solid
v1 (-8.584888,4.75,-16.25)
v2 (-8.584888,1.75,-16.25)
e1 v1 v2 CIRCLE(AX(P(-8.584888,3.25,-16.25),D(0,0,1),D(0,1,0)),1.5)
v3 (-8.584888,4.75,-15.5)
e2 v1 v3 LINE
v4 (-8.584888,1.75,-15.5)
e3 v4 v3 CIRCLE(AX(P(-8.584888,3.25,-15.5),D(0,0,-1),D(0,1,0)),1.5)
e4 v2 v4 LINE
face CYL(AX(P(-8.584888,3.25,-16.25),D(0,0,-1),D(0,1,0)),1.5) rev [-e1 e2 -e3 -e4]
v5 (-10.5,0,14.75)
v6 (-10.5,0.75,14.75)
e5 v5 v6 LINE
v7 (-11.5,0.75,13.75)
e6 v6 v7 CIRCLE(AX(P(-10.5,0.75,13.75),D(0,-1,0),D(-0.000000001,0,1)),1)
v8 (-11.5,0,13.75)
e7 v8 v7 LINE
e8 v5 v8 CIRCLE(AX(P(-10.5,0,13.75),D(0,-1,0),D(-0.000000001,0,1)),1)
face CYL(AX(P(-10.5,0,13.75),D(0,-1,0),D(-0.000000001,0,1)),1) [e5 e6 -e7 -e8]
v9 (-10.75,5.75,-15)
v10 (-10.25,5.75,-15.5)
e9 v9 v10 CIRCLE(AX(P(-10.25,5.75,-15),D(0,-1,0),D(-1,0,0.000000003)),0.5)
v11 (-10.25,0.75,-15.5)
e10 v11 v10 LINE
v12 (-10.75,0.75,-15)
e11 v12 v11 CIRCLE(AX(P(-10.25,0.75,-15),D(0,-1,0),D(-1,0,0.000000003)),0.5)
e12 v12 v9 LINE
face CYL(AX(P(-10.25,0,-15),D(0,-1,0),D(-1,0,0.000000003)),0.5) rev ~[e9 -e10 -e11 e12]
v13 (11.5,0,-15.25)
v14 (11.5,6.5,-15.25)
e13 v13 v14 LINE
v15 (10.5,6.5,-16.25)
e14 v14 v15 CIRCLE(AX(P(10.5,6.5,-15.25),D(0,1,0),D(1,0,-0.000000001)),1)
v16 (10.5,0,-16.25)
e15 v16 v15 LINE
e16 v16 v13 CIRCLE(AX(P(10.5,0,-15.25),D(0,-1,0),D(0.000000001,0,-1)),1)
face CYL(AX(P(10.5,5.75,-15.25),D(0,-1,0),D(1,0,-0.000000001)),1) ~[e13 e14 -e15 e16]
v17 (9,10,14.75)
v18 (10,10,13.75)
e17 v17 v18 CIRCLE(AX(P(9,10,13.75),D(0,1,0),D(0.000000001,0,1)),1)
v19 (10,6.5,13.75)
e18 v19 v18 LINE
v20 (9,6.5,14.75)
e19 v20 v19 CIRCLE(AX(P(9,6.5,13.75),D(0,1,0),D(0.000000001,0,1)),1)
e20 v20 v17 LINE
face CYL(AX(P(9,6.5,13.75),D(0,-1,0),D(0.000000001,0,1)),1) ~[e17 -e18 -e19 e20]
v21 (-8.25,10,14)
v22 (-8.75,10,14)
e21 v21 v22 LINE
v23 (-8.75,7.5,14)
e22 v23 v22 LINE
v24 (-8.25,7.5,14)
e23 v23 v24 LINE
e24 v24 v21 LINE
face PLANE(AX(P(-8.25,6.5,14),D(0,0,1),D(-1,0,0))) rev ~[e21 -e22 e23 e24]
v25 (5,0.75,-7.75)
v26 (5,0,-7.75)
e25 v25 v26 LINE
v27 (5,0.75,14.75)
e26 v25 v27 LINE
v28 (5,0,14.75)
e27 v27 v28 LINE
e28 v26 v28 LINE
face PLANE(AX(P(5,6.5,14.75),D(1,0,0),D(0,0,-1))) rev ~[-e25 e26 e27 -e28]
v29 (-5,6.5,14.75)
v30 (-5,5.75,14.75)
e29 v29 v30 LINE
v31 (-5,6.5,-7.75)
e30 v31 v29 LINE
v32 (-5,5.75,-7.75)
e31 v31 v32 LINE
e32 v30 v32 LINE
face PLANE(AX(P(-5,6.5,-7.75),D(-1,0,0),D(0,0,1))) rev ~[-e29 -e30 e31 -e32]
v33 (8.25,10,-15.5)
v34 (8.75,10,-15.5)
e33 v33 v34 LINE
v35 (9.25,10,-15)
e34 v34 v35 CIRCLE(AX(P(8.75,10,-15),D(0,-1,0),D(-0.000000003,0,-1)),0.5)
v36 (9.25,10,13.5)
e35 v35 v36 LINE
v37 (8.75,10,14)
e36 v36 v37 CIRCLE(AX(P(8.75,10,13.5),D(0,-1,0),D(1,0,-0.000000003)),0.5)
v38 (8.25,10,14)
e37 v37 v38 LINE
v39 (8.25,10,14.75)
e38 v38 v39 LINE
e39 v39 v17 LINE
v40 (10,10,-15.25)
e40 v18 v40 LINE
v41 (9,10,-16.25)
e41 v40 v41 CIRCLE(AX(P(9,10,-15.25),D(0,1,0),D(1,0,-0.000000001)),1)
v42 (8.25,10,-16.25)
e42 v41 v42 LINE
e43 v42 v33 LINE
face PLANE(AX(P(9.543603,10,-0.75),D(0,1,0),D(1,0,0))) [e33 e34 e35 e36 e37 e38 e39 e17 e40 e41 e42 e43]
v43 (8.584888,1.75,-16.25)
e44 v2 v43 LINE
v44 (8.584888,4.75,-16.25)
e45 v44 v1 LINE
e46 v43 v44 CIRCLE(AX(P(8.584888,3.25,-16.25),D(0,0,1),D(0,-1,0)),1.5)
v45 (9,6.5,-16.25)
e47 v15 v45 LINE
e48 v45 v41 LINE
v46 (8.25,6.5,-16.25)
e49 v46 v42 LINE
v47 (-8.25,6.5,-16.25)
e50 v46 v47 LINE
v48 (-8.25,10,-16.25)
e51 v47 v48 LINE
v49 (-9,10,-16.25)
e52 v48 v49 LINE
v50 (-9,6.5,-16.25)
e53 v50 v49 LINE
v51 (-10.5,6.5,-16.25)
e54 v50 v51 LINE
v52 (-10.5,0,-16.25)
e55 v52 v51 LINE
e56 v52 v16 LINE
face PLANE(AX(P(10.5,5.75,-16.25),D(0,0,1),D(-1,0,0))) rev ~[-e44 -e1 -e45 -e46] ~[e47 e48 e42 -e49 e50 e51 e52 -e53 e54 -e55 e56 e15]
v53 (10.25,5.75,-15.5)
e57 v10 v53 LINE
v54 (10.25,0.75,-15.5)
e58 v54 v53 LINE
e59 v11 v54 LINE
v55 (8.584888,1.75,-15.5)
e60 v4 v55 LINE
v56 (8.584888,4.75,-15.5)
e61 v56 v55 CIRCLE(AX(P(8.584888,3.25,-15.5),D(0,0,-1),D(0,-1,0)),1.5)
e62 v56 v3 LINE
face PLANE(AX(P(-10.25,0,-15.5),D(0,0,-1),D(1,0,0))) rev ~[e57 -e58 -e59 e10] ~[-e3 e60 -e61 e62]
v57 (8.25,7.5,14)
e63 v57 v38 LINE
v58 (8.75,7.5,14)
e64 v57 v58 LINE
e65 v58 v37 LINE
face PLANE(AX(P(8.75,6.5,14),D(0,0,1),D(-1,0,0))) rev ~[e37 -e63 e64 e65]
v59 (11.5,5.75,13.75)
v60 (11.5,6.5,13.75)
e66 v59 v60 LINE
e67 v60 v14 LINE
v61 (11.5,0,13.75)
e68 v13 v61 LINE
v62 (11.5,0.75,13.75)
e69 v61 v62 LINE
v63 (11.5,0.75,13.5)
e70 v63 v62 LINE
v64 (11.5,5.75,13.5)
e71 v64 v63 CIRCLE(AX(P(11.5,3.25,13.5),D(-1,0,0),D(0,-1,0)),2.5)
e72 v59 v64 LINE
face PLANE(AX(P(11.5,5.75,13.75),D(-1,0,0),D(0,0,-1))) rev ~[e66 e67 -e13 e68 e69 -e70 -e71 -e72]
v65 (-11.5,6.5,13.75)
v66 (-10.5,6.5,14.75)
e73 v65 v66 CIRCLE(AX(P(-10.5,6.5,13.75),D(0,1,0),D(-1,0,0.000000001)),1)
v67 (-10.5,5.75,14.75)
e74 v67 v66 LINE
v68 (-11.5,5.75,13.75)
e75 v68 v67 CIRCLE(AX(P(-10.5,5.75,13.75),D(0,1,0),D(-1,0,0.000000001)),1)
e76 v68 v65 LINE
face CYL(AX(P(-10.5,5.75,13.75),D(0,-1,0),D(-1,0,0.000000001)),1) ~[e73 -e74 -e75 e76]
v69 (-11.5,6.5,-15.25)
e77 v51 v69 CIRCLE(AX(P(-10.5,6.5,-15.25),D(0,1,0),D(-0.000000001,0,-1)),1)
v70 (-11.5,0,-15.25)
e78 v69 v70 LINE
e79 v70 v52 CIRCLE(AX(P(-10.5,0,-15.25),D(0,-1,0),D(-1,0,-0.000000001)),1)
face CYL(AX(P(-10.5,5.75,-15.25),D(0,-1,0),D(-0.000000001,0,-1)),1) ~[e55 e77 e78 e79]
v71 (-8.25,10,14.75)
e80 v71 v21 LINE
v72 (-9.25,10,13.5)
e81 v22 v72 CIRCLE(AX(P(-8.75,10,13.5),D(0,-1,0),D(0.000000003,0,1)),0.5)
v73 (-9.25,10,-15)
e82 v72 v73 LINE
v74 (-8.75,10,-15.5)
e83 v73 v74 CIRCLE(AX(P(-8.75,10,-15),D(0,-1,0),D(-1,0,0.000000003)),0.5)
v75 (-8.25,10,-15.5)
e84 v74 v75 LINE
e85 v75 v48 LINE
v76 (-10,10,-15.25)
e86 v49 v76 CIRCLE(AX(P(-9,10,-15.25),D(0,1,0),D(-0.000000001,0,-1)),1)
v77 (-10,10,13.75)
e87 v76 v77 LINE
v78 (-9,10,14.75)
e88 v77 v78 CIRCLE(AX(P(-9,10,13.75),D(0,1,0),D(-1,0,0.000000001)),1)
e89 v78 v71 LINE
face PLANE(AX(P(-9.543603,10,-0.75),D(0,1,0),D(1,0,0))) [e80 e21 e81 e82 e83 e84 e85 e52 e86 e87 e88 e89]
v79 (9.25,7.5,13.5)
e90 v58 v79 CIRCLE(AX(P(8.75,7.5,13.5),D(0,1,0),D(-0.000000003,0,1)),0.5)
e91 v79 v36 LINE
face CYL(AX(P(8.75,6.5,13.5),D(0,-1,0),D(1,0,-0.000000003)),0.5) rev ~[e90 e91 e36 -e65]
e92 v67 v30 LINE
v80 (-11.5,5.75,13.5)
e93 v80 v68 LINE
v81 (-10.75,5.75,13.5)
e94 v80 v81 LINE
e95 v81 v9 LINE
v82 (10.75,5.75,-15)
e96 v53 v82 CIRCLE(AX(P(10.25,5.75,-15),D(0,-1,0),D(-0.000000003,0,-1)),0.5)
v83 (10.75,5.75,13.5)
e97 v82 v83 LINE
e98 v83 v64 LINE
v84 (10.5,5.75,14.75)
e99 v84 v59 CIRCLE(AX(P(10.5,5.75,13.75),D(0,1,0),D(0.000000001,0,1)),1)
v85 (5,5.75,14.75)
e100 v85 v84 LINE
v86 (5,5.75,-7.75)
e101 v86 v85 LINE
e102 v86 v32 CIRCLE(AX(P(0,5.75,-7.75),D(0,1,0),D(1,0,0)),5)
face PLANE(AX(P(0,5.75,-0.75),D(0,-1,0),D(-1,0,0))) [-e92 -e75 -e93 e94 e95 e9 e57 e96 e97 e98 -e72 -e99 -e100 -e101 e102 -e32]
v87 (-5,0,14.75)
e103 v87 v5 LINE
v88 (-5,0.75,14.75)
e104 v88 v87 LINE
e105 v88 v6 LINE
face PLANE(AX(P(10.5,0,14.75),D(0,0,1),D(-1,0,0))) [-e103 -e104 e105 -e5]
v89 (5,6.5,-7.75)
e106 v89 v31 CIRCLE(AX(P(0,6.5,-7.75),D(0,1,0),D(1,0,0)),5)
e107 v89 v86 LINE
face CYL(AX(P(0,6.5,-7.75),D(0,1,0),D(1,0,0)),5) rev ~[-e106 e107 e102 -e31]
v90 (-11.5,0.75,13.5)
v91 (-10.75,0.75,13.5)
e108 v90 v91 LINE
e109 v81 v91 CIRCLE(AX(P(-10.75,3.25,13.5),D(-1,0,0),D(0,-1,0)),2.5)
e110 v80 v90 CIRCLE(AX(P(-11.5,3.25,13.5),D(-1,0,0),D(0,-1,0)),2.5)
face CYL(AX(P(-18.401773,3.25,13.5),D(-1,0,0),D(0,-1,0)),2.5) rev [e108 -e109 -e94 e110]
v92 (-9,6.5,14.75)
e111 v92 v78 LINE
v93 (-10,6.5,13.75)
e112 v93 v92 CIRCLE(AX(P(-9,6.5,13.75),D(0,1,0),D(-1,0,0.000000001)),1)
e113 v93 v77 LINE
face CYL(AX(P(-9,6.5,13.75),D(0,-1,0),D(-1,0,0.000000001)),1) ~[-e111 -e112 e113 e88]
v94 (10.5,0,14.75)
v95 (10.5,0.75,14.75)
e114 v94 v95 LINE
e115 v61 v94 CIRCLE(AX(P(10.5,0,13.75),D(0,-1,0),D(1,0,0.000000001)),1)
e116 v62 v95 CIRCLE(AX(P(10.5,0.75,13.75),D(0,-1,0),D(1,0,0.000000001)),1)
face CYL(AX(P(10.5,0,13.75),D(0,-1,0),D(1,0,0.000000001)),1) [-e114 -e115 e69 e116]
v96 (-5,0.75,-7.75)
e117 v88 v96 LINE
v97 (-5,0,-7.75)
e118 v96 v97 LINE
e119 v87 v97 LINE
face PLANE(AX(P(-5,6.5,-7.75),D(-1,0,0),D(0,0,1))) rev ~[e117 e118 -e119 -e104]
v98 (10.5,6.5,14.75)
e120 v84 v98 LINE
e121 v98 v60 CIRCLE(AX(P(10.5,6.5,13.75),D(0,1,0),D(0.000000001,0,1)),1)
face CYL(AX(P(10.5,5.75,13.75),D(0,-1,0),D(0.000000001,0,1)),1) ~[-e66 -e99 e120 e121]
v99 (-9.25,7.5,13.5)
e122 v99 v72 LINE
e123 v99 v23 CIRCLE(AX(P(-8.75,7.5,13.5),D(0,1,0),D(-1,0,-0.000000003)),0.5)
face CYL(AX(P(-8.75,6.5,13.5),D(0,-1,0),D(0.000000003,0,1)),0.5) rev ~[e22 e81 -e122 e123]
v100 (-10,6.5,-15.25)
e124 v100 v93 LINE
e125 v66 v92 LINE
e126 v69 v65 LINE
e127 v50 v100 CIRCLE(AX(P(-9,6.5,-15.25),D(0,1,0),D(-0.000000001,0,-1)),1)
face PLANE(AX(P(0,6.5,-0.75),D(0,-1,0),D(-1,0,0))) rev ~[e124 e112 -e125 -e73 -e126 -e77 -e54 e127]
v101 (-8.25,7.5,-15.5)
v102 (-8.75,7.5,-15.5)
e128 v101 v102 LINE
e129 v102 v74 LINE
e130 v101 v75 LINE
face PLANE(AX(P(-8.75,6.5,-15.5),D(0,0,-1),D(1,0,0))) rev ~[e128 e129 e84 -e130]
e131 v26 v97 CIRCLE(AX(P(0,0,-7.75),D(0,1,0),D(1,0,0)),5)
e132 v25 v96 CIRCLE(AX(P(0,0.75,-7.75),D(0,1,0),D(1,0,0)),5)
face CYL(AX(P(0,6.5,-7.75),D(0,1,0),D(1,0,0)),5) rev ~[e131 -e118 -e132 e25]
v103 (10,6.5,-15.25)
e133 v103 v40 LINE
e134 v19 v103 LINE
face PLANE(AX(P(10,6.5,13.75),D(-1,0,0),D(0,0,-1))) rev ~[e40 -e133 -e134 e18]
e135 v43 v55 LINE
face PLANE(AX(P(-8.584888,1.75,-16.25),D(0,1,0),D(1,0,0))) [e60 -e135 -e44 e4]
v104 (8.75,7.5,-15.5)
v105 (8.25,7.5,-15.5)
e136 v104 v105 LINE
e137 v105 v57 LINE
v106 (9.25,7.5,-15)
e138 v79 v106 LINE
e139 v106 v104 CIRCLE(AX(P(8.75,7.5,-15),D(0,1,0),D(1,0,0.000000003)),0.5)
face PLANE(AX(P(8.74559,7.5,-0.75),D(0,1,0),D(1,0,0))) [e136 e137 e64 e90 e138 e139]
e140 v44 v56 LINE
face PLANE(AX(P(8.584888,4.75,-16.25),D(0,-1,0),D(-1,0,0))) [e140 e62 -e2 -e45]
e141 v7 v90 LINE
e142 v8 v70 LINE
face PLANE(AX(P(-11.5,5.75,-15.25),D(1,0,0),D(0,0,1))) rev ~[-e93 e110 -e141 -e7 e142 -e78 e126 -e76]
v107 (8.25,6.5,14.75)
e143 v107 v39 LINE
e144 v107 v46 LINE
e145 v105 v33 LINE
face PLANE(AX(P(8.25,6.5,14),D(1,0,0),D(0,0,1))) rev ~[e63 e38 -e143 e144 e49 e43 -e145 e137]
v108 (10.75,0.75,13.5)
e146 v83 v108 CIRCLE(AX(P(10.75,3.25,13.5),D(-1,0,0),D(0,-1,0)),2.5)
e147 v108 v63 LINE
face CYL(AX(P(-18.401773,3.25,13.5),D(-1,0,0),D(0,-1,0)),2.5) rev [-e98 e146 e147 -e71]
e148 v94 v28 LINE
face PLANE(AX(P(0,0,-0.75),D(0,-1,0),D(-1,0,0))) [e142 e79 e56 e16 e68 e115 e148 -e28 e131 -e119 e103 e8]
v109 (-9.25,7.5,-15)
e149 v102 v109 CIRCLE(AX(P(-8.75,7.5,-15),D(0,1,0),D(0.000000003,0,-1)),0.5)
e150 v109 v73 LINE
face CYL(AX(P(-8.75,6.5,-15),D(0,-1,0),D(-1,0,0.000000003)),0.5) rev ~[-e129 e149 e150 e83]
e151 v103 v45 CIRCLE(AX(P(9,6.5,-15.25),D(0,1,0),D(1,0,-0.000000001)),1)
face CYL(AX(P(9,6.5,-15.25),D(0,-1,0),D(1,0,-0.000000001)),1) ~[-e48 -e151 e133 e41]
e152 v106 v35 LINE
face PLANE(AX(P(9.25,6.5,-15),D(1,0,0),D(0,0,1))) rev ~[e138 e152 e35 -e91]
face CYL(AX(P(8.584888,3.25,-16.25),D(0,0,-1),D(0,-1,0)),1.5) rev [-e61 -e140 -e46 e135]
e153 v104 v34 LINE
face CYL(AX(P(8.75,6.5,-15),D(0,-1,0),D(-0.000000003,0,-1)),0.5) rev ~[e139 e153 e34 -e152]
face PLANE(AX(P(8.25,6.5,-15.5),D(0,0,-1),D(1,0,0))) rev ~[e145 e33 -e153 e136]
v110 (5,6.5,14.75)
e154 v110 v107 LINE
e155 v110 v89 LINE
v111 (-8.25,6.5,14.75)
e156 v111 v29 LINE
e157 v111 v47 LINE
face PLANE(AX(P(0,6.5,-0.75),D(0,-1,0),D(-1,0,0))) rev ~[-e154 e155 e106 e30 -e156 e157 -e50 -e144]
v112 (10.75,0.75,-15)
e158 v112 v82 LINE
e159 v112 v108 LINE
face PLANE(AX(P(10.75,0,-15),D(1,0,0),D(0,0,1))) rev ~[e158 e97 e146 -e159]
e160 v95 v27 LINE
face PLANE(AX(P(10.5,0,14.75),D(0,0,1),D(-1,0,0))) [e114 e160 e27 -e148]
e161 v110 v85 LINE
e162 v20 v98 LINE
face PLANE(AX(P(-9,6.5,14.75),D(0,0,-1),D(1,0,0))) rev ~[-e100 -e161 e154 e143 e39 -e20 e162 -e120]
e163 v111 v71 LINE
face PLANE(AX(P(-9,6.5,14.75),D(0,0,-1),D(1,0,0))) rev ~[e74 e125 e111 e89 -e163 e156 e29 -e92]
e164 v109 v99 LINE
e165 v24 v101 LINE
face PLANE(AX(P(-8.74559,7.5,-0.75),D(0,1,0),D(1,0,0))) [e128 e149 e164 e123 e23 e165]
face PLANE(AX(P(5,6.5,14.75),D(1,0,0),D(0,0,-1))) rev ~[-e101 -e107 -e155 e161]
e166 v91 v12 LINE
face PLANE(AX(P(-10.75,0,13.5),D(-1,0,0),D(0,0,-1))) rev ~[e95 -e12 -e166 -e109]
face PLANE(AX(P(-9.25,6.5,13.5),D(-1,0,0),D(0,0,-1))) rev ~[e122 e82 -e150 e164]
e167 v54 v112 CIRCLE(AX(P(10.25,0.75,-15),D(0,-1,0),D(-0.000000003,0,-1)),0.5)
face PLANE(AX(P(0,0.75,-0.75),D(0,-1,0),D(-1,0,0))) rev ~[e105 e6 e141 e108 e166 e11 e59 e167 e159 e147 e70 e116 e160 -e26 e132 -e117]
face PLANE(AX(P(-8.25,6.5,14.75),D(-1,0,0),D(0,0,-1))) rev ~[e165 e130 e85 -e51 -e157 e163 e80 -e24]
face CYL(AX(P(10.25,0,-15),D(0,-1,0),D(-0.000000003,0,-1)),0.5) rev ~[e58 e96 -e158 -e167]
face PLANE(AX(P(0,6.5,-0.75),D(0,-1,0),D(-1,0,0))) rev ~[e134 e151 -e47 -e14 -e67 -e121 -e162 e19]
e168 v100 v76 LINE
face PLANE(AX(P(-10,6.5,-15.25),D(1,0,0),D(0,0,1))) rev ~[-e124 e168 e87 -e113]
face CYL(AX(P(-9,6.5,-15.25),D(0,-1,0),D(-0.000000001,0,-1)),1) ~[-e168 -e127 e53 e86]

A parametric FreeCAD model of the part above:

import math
import FreeCAD as App
import Part
import Sketcher

V = App.Vector

doc = App.newDocument("Part")
body = doc.addObject("PartDesign::Body", "Body")

# Sketch on XZ plane
sketch1 = body.newObject("Sketcher::SketchObject", "Sketch")
sketch1.AttachmentSupport = (doc.getObject("XZ_Plane"), [""])
sketch1.MapMode = "FlatFace"
sketch1.addGeometry([
    Part.LineSegment(V(10.5, -16.2, 0), V(-10.5, -16.2, 0)),  # 0
    Part.ArcOfCircle(Part.Circle(V(-10.5, -15.2, 0), V(0, 0, 1), 1), math.radians(-180), math.radians(-90)),  # 1
    Part.LineSegment(V(-11.5, -15.2, 0), V(-11.5, 13.8, 0)),  # 2
    Part.ArcOfCircle(Part.Circle(V(-10.5, 13.7, 0), V(0, 0, 1), 1), math.radians(90), math.radians(180)),  # 3
    Part.LineSegment(V(-10.5, 14.8, 0), V(10.5, 14.8, 0)),  # 4
    Part.ArcOfCircle(Part.Circle(V(10.5, 13.7, 0), V(0, 0, 1), 1), math.radians(0), math.radians(90)),  # 5
    Part.LineSegment(V(11.5, 13.8, 0), V(11.5, -15.2, 0)),  # 6
    Part.ArcOfCircle(Part.Circle(V(10.5, -15.2, 0), V(0, 0, 1), 1), math.radians(-90), math.radians(0)),  # 7
], False)
sketch1.addConstraint([
    Sketcher.Constraint("Tangent", 0, 2, 1, 2),
    Sketcher.Constraint("Tangent", 1, 1, 2, 1),
    Sketcher.Constraint("Tangent", 2, 2, 3, 2),
    Sketcher.Constraint("Tangent", 3, 1, 4, 1),
    Sketcher.Constraint("Tangent", 4, 2, 5, 2),
    Sketcher.Constraint("Tangent", 5, 1, 6, 1),
    Sketcher.Constraint("Tangent", 6, 2, 7, 2),
    Sketcher.Constraint("Tangent", 7, 1, 0, 1),
    Sketcher.Constraint("Horizontal", 0),
    Sketcher.Constraint("Vertical", 2),
    Sketcher.Constraint("Horizontal", 4),
    Sketcher.Constraint("Vertical", 6),
    Sketcher.Constraint("Equal", 1, 3),
    Sketcher.Constraint("Equal", 3, 5),
    Sketcher.Constraint("Equal", 5, 7),
    Sketcher.Constraint("Radius", 1, 1.0),
    Sketcher.Constraint("DistanceX", 0, 2, 0, 1, 21.0),
    Sketcher.Constraint("DistanceY", 2, 1, 2, 2, 29.0),
    Sketcher.Constraint("DistanceX", 1, 3, -1, 1, 10.5),
    Sketcher.Constraint("DistanceY", 1, 3, -1, 1, 15.25),
])
pad1 = body.newObject("PartDesign::Pad", "Pad")
pad1.Profile = sketch1
pad1.Length = 0.75
pad1.Reversed = True

# Sketch on XZ plane
sketch2 = body.newObject("Sketcher::SketchObject", "Sketch001")
sketch2.AttachmentSupport = (doc.getObject("XZ_Plane"), [""])
sketch2.MapMode = "FlatFace"
sketch2.addGeometry([
    Part.LineSegment(V(-11.5, 13.5, 0), V(-10.75, 13.5, 0)),  # 0
    Part.LineSegment(V(-10.75, 13.5, 0), V(-10.75, -15, 0)),  # 1
    Part.ArcOfCircle(Part.Circle(V(-10.25, -15, 0), V(0, 0, 1), 0.5), math.radians(180), math.radians(270)),  # 2
    Part.LineSegment(V(-10.25, -15.5, 0), V(10.25, -15.5, 0)),  # 3
    Part.ArcOfCircle(Part.Circle(V(10.25, -15, 0), V(0, 0, 1), 0.5), math.radians(-90), math.radians(0)),  # 4
    Part.LineSegment(V(10.75, -15, 0), V(10.75, 13.5, 0)),  # 5
    Part.LineSegment(V(10.75, 13.5, 0), V(11.5, 13.5, 0)),  # 6
    Part.LineSegment(V(11.5, 13.5, 0), V(11.5, -15.25, 0)),  # 7
    Part.ArcOfCircle(Part.Circle(V(10.5, -15.25, 0), V(0, 0, 1), 1), math.radians(-90), math.radians(0)),  # 8
    Part.LineSegment(V(10.5, -16.25, 0), V(-10.5, -16.25, 0)),  # 9
    Part.ArcOfCircle(Part.Circle(V(-10.5, -15.25, 0), V(0, 0, 1), 1), math.radians(-180), math.radians(-90)),  # 10
    Part.LineSegment(V(-11.5, -15.25, 0), V(-11.5, 13.5, 0)),  # 11
], False)
sketch2.addConstraint([
    Sketcher.Constraint("Coincident", 0, 2, 1, 1),
    Sketcher.Constraint("Tangent", 1, 2, 2, 1),
    Sketcher.Constraint("Tangent", 2, 2, 3, 1),
    Sketcher.Constraint("Tangent", 3, 2, 4, 1),
    Sketcher.Constraint("Tangent", 4, 2, 5, 1),
    Sketcher.Constraint("Coincident", 5, 2, 6, 1),
    Sketcher.Constraint("Coincident", 6, 2, 7, 1),
    Sketcher.Constraint("Tangent", 7, 2, 8, 2),
    Sketcher.Constraint("Tangent", 8, 1, 9, 1),
    Sketcher.Constraint("Tangent", 9, 2, 10, 2),
    Sketcher.Constraint("Tangent", 10, 1, 11, 1),
    Sketcher.Constraint("Coincident", 11, 2, 0, 1),
    Sketcher.Constraint("Horizontal", 0),
    Sketcher.Constraint("Vertical", 1),
    Sketcher.Constraint("Horizontal", 3),
    Sketcher.Constraint("Vertical", 5),
    Sketcher.Constraint("Horizontal", 6),
    Sketcher.Constraint("Vertical", 7),
    Sketcher.Constraint("Horizontal", 9),
    Sketcher.Constraint("Vertical", 11),
    Sketcher.Constraint("Equal", 2, 4),
    Sketcher.Constraint("Equal", 8, 10),
    Sketcher.Constraint("Symmetric", 0, 2, 5, 2, -2),
    Sketcher.Constraint("Equal", 0, 6),
    Sketcher.Constraint("Radius", 8, 1.0),
    Sketcher.Constraint("Radius", 2, 0.5),
    Sketcher.Constraint("DistanceX", 9, 2, 9, 1, 21.0),
    Sketcher.Constraint("DistanceX", 3, 1, 3, 2, 20.5),
    Sketcher.Constraint("DistanceY", 1, 2, 1, 1, 28.5),
    Sketcher.Constraint("DistanceY", 2, 3, -1, 1, 15.0),
    Sketcher.Constraint("DistanceY", 7, 2, 7, 1, 28.75),
])
pad2 = body.newObject("PartDesign::Pad", "Pad001")
pad2.Profile = sketch2
pad2.Length = 5.75
pad2.Reversed = True

# Sketch on XZ plane
sketch3 = body.newObject("Sketcher::SketchObject", "Sketch002")
sketch3.AttachmentSupport = (doc.getObject("XZ_Plane"), [""])
sketch3.MapMode = "FlatFace"
sketch3.AttachmentOffset = App.Placement(V(0, 0, -5.75), App.Rotation())
sketch3.addGeometry([
    Part.LineSegment(V(11.5, 13.8, 0), V(11.5, -15.2, 0)),  # 0
    Part.ArcOfCircle(Part.Circle(V(10.5, -15.2, 0), V(0, 0, 1), 1), math.radians(-90), math.radians(0)),  # 1
    Part.LineSegment(V(10.5, -16.2, 0), V(-10.5, -16.2, 0)),  # 2
    Part.ArcOfCircle(Part.Circle(V(-10.5, -15.2, 0), V(0, 0, 1), 1), math.radians(-180), math.radians(-90)),  # 3
    Part.LineSegment(V(-11.5, -15.2, 0), V(-11.5, 13.8, 0)),  # 4
    Part.ArcOfCircle(Part.Circle(V(-10.5, 13.7, 0), V(0, 0, 1), 1), math.radians(90), math.radians(180)),  # 5
    Part.LineSegment(V(-10.5, 14.8, 0), V(10.5, 14.8, 0)),  # 6
    Part.ArcOfCircle(Part.Circle(V(10.5, 13.7, 0), V(0, 0, 1), 1), math.radians(0), math.radians(90)),  # 7
], False)
sketch3.addConstraint([
    Sketcher.Constraint("Tangent", 0, 2, 1, 2),
    Sketcher.Constraint("Tangent", 1, 1, 2, 1),
    Sketcher.Constraint("Tangent", 2, 2, 3, 2),
    Sketcher.Constraint("Tangent", 3, 1, 4, 1),
    Sketcher.Constraint("Tangent", 4, 2, 5, 2),
    Sketcher.Constraint("Tangent", 5, 1, 6, 1),
    Sketcher.Constraint("Tangent", 6, 2, 7, 2),
    Sketcher.Constraint("Tangent", 7, 1, 0, 1),
    Sketcher.Constraint("Vertical", 0),
    Sketcher.Constraint("Horizontal", 2),
    Sketcher.Constraint("Vertical", 4),
    Sketcher.Constraint("Horizontal", 6),
    Sketcher.Constraint("Equal", 1, 3),
    Sketcher.Constraint("Equal", 3, 5),
    Sketcher.Constraint("Equal", 5, 7),
    Sketcher.Constraint("Radius", 1, 1.0),
    Sketcher.Constraint("DistanceX", 2, 2, 2, 1, 21.0),
    Sketcher.Constraint("DistanceY", 0, 2, 0, 1, 29.0),
    Sketcher.Constraint("DistanceX", -1, 1, 1, 3, 10.5),
    Sketcher.Constraint("DistanceY", 1, 3, -1, 1, 15.25),
])
pad3 = body.newObject("PartDesign::Pad", "Pad002")
pad3.Profile = sketch3
pad3.Length = 0.75
pad3.Reversed = True

# Sketch on YZ plane
sketch4 = body.newObject("Sketcher::SketchObject", "Sketch003")
sketch4.AttachmentSupport = (doc.getObject("YZ_Plane"), [""])
sketch4.MapMode = "FlatFace"
sketch4.AttachmentOffset = App.Placement(V(0, 0, 11.5), App.Rotation())
sketch4.addGeometry([
    Part.ArcOfCircle(Part.Circle(V(3.2, 13.5, 0), V(0, 0, 1), 2.5), math.radians(180), math.radians(360)),
    Part.LineSegment(V(5.8, 13.5, 0), V(5.8, 225.3, 0)),
    Part.LineSegment(V(5.8, 225.3, 0), V(0.8, 225.3, 0)),
    Part.LineSegment(V(0.8, 225.3, 0), V(0.8, 13.5, 0)),
], False)
sketch4.addConstraint([
    Sketcher.Constraint("Tangent", 0, 2, 1, 1),
    Sketcher.Constraint("Coincident", 1, 2, 2, 1),
    Sketcher.Constraint("Coincident", 2, 2, 3, 1),
    Sketcher.Constraint("Tangent", 3, 2, 0, 1),
    Sketcher.Constraint("Vertical", 1),
    Sketcher.Constraint("Horizontal", 2),
    Sketcher.Constraint("Vertical", 3),
    Sketcher.Constraint("Radius", 0, 2.5),
    Sketcher.Constraint("DistanceY", -1, 1, 0, 3, 13.5),
    Sketcher.Constraint("DistanceX", -1, 1, 0, 3, 3.25),
    Sketcher.Constraint("DistanceY", 1, 1, 1, 2, 211.803465),
])
pocket1 = body.newObject("PartDesign::Pocket", "Pocket")
pocket1.Profile = sketch4
pocket1.Type = "ThroughAll"
pocket1.Midplane = True

# Sketch on XZ plane
sketch5 = body.newObject("Sketcher::SketchObject", "Sketch004")
sketch5.AttachmentSupport = (doc.getObject("XZ_Plane"), [""])
sketch5.MapMode = "FlatFace"
sketch5.AttachmentOffset = App.Placement(V(0, 0, -6.5), App.Rotation())
sketch5.addGeometry([
    Part.LineSegment(V(-8.75, 14, 0), V(-8.25, 14, 0)),  # 0
    Part.LineSegment(V(-8.25, 14, 0), V(-8.25, -15.5, 0)),  # 1
    Part.LineSegment(V(-8.25, -15.5, 0), V(-8.75, -15.5, 0)),  # 2
    Part.ArcOfCircle(Part.Circle(V(-8.75, -15, 0), V(0, 0, 1), 0.5), math.radians(180), math.radians(270)),  # 3
    Part.LineSegment(V(-9.25, -15, 0), V(-9.25, 13.5, 0)),  # 4
    Part.ArcOfCircle(Part.Circle(V(-8.75, 13.5, 0), V(0, 0, 1), 0.5), math.radians(90), math.radians(180)),  # 5
    Part.LineSegment(V(8.25, -15.5, 0), V(8.25, 14, 0)),  # 6
    Part.LineSegment(V(8.25, 14, 0), V(8.75, 14, 0)),  # 7
    Part.ArcOfCircle(Part.Circle(V(8.75, 13.5, 0), V(0, 0, 1), 0.5), math.radians(0), math.radians(90)),  # 8
    Part.LineSegment(V(9.25, 13.5, 0), V(9.25, -15, 0)),  # 9
    Part.ArcOfCircle(Part.Circle(V(8.75, -15, 0), V(0, 0, 1), 0.5), math.radians(-90), math.radians(0)),  # 10
    Part.LineSegment(V(8.75, -15.5, 0), V(8.25, -15.5, 0)),  # 11
], False)
sketch5.addConstraint([
    Sketcher.Constraint("Coincident", 0, 2, 1, 1),
    Sketcher.Constraint("Coincident", 1, 2, 2, 1),
    Sketcher.Constraint("Tangent", 2, 2, 3, 2),
    Sketcher.Constraint("Tangent", 3, 1, 4, 1),
    Sketcher.Constraint("Tangent", 4, 2, 5, 2),
    Sketcher.Constraint("Tangent", 5, 1, 0, 1),
    Sketcher.Constraint("Coincident", 6, 2, 7, 1),
    Sketcher.Constraint("Tangent", 7, 2, 8, 2),
    Sketcher.Constraint("Tangent", 8, 1, 9, 1),
    Sketcher.Constraint("Tangent", 9, 2, 10, 2),
    Sketcher.Constraint("Tangent", 10, 1, 11, 1),
    Sketcher.Constraint("Coincident", 11, 2, 6, 1),
    Sketcher.Constraint("Horizontal", 0),
    Sketcher.Constraint("Vertical", 1),
    Sketcher.Constraint("Horizontal", 2),
    Sketcher.Constraint("Vertical", 4),
    Sketcher.Constraint("Vertical", 6),
    Sketcher.Constraint("Horizontal", 7),
    Sketcher.Constraint("Vertical", 9),
    Sketcher.Constraint("Horizontal", 11),
    Sketcher.Constraint("Equal", 3, 5),
    Sketcher.Constraint("Equal", 5, 8),
    Sketcher.Constraint("Equal", 8, 10),
    Sketcher.Constraint("Symmetric", 5, 3, 8, 3, -2),
    Sketcher.Constraint("Symmetric", 1, 2, 11, 2, -2),
    Sketcher.Constraint("Radius", 3, 0.5),
    Sketcher.Constraint("DistanceX", 0, 1, 0, 2, 0.5),
    Sketcher.Constraint("DistanceY", 1, 2, 1, 1, 29.5),
    Sketcher.Constraint("DistanceY", 3, 3, -1, 1, 15.0),
    Sketcher.Constraint("DistanceX", 0, 2, 8, 3, 17.0),
])
pad4 = body.newObject("PartDesign::Pad", "Pad003")
pad4.Profile = sketch5
pad4.Length = 1
pad4.Reversed = True

# Sketch on XZ plane
sketch6 = body.newObject("Sketcher::SketchObject", "Sketch005")
sketch6.AttachmentSupport = (doc.getObject("XZ_Plane"), [""])
sketch6.MapMode = "FlatFace"
sketch6.AttachmentOffset = App.Placement(V(0, 0, -6.5), App.Rotation())
sketch6.addGeometry([
    Part.LineSegment(V(-8.25, 14.75, 0), V(-8.25, 14, 0)),  # 0
    Part.LineSegment(V(-8.25, 14, 0), V(-8.75, 14, 0)),  # 1
    Part.ArcOfCircle(Part.Circle(V(-8.75, 13.5, 0), V(0, 0, 1), 0.5), math.radians(90), math.radians(180)),  # 2
    Part.LineSegment(V(-9.25, 13.5, 0), V(-9.25, -15, 0)),  # 3
    Part.ArcOfCircle(Part.Circle(V(-8.75, -15, 0), V(0, 0, 1), 0.5), math.radians(180), math.radians(270)),  # 4
    Part.LineSegment(V(-8.75, -15.5, 0), V(-8.25, -15.5, 0)),  # 5
    Part.LineSegment(V(-8.25, -15.5, 0), V(-8.25, -16.25, 0)),  # 6
    Part.LineSegment(V(-8.25, -16.25, 0), V(-9, -16.25, 0)),  # 7
    Part.ArcOfCircle(Part.Circle(V(-9, -15.25, 0), V(0, 0, 1), 1), math.radians(-180), math.radians(-90)),  # 8
    Part.LineSegment(V(-10, -15.25, 0), V(-10, 13.75, 0)),  # 9
    Part.ArcOfCircle(Part.Circle(V(-9, 13.75, 0), V(0, 0, 1), 1), math.radians(90), math.radians(180)),  # 10
    Part.LineSegment(V(-9, 14.75, 0), V(-8.25, 14.75, 0)),  # 11
    Part.LineSegment(V(8.75, 14, 0), V(8.25, 14, 0)),  # 12
    Part.LineSegment(V(8.25, 14, 0), V(8.25, 14.75, 0)),  # 13
    Part.LineSegment(V(8.25, 14.75, 0), V(9, 14.75, 0)),  # 14
    Part.ArcOfCircle(Part.Circle(V(9, 13.75, 0), V(0, 0, 1), 1), math.radians(0), math.radians(90)),  # 15
    Part.LineSegment(V(10, 13.75, 0), V(10, -15.25, 0)),  # 16
    Part.ArcOfCircle(Part.Circle(V(9, -15.25, 0), V(0, 0, 1), 1), math.radians(-90), math.radians(0)),  # 17
    Part.LineSegment(V(9, -16.25, 0), V(8.25, -16.25, 0)),  # 18
    Part.LineSegment(V(8.25, -16.25, 0), V(8.25, -15.5, 0)),  # 19
    Part.LineSegment(V(8.25, -15.5, 0), V(8.75, -15.5, 0)),  # 20
    Part.ArcOfCircle(Part.Circle(V(8.75, -15, 0), V(0, 0, 1), 0.5), math.radians(-90), math.radians(0)),  # 21
    Part.LineSegment(V(9.25, -15, 0), V(9.25, 13.5, 0)),  # 22
    Part.ArcOfCircle(Part.Circle(V(8.75, 13.5, 0), V(0, 0, 1), 0.5), math.radians(0), math.radians(90)),  # 23
], False)
sketch6.addConstraint([
    Sketcher.Constraint("Coincident", 0, 2, 1, 1),
    Sketcher.Constraint("Tangent", 1, 2, 2, 1),
    Sketcher.Constraint("Tangent", 2, 2, 3, 1),
    Sketcher.Constraint("Tangent", 3, 2, 4, 1),
    Sketcher.Constraint("Tangent", 4, 2, 5, 1),
    Sketcher.Constraint("Coincident", 5, 2, 6, 1),
    Sketcher.Constraint("Coincident", 6, 2, 7, 1),
    Sketcher.Constraint("Tangent", 7, 2, 8, 2),
    Sketcher.Constraint("Tangent", 8, 1, 9, 1),
    Sketcher.Constraint("Tangent", 9, 2, 10, 2),
    Sketcher.Constraint("Tangent", 10, 1, 11, 1),
    Sketcher.Constraint("Coincident", 11, 2, 0, 1),
    Sketcher.Constraint("Coincident", 12, 2, 13, 1),
    Sketcher.Constraint("Coincident", 13, 2, 14, 1),
    Sketcher.Constraint("Tangent", 14, 2, 15, 2),
    Sketcher.Constraint("Tangent", 15, 1, 16, 1),
    Sketcher.Constraint("Tangent", 16, 2, 17, 2),
    Sketcher.Constraint("Tangent", 17, 1, 18, 1),
    Sketcher.Constraint("Coincident", 18, 2, 19, 1),
    Sketcher.Constraint("Coincident", 19, 2, 20, 1),
    Sketcher.Constraint("Tangent", 20, 2, 21, 1),
    Sketcher.Constraint("Tangent", 21, 2, 22, 1),
    Sketcher.Constraint("Tangent", 22, 2, 23, 1),
    Sketcher.Constraint("Tangent", 23, 2, 12, 1),
    Sketcher.Constraint("Vertical", 0),
    Sketcher.Constraint("Horizontal", 1),
    Sketcher.Constraint("Vertical", 3),
    Sketcher.Constraint("Horizontal", 5),
    Sketcher.Constraint("Vertical", 6),
    Sketcher.Constraint("Horizontal", 7),
    Sketcher.Constraint("Vertical", 9),
    Sketcher.Constraint("Horizontal", 11),
    Sketcher.Constraint("Horizontal", 12),
    Sketcher.Constraint("Vertical", 13),
    Sketcher.Constraint("Horizontal", 14),
    Sketcher.Constraint("Vertical", 16),
    Sketcher.Constraint("Horizontal", 18),
    Sketcher.Constraint("Vertical", 19),
    Sketcher.Constraint("Horizontal", 20),
    Sketcher.Constraint("Vertical", 22),
    Sketcher.Constraint("Equal", 2, 4),
    Sketcher.Constraint("Equal", 8, 10),
    Sketcher.Constraint("Equal", 10, 15),
    Sketcher.Constraint("Equal", 15, 17),
    Sketcher.Constraint("Equal", 4, 21),
    Sketcher.Constraint("Equal", 21, 23),
    Sketcher.Constraint("Symmetric", 10, 3, 15, 3, -2),
    Sketcher.Constraint("Symmetric", 4, 3, 21, 3, -2),
    Sketcher.Constraint("Symmetric", 0, 2, 12, 2, -2),
    Sketcher.Constraint("Symmetric", 6, 2, 18, 2, -2),
    Sketcher.Constraint("Vertical", 0, 2, 5, 2),
    Sketcher.Constraint("Equal", 18, 0),
    Sketcher.Constraint("Equal", 0, 6),
    Sketcher.Constraint("Radius", 8, 1.0),
    Sketcher.Constraint("Radius", 2, 0.5),
    Sketcher.Constraint("DistanceY", 9, 1, 9, 2, 29.0),
    Sketcher.Constraint("DistanceX", 1, 2, 1, 1, 0.5),
    Sketcher.Constraint("DistanceY", 3, 2, 3, 1, 28.5),
    Sketcher.Constraint("DistanceY", 4, 3, -1, 1, 15.0),
    Sketcher.Constraint("DistanceX", 8, 3, -1, 1, 9.0),
])
pad5 = body.newObject("PartDesign::Pad", "Pad004")
pad5.Profile = sketch6
pad5.Length = 3.5
pad5.Reversed = True

# Sketch on XZ plane
sketch7 = body.newObject("Sketcher::SketchObject", "Sketch006")
sketch7.AttachmentSupport = (doc.getObject("XZ_Plane"), [""])
sketch7.MapMode = "FlatFace"
sketch7.AttachmentOffset = App.Placement(V(0, 0, -6.5), App.Rotation())
sketch7.addGeometry([
    Part.LineSegment(V(-5, -8, 0), V(-5, 15, 0)),
    Part.LineSegment(V(-5, 15, 0), V(5, 15, 0)),
    Part.LineSegment(V(5, 15, 0), V(5, -8, 0)),
    Part.ArcOfCircle(Part.Circle(V(0, -8, 0), V(0, 0, 1), 5), math.radians(180), math.radians(360)),
], False)
sketch7.addConstraint([
    Sketcher.Constraint("Coincident", 0, 2, 1, 1),
    Sketcher.Constraint("Coincident", 1, 2, 2, 1),
    Sketcher.Constraint("Tangent", 2, 2, 3, 2),
    Sketcher.Constraint("Tangent", 3, 1, 0, 1),
    Sketcher.Constraint("Vertical", 0),
    Sketcher.Constraint("Horizontal", 1),
    Sketcher.Constraint("Vertical", 2),
    Sketcher.Constraint("PointOnObject", 3, 3, -2),
    Sketcher.Constraint("Radius", 3, 5.0),
    Sketcher.Constraint("DistanceY", 0, 1, 0, 2, 22.5),
    Sketcher.Constraint("DistanceY", 3, 3, -1, 1, 7.75),
])
pocket2 = body.newObject("PartDesign::Pocket", "Pocket001")
pocket2.Profile = sketch7
pocket2.Type = "ThroughAll"
pocket2.Reversed = True

# Sketch on XY plane
sketch8 = body.newObject("Sketcher::SketchObject", "Sketch007")
sketch8.AttachmentSupport = (doc.getObject("XY_Plane"), [""])
sketch8.MapMode = "FlatFace"
sketch8.AttachmentOffset = App.Placement(V(0, 0, -16.25), App.Rotation())
sketch8.addGeometry([
    Part.LineSegment(V(8.6, 1.8, 0), V(-8.6, 1.8, 0)),
    Part.ArcOfCircle(Part.Circle(V(-8.6, 3.2, 0), V(0, 0, 1), 1.5), math.radians(90), math.radians(270)),
    Part.LineSegment(V(-8.6, 4.8, 0), V(8.6, 4.8, 0)),
    Part.ArcOfCircle(Part.Circle(V(8.6, 3.2, 0), V(0, 0, 1), 1.5), math.radians(-90), math.radians(90)),
], False)
sketch8.addConstraint([
    Sketcher.Constraint("Tangent", 0, 2, 1, 2),
    Sketcher.Constraint("Tangent", 1, 1, 2, 1),
    Sketcher.Constraint("Tangent", 2, 2, 3, 2),
    Sketcher.Constraint("Tangent", 3, 1, 0, 1),
    Sketcher.Constraint("Horizontal", 0),
    Sketcher.Constraint("Horizontal", 2),
    Sketcher.Constraint("Radius", 1, 1.5),
    Sketcher.Constraint("DistanceY", -1, 1, 1, 3, 3.25),
    Sketcher.Constraint("DistanceX", 0, 2, 0, 1, 17.169776),
    Sketcher.Constraint("DistanceX", 1, 3, -1, 1, 8.584888),
])
pocket3 = body.newObject("PartDesign::Pocket", "Pocket002")
pocket3.Profile = sketch8
pocket3.Length = 3.5
pocket3.Reversed = True

doc.recompute()
